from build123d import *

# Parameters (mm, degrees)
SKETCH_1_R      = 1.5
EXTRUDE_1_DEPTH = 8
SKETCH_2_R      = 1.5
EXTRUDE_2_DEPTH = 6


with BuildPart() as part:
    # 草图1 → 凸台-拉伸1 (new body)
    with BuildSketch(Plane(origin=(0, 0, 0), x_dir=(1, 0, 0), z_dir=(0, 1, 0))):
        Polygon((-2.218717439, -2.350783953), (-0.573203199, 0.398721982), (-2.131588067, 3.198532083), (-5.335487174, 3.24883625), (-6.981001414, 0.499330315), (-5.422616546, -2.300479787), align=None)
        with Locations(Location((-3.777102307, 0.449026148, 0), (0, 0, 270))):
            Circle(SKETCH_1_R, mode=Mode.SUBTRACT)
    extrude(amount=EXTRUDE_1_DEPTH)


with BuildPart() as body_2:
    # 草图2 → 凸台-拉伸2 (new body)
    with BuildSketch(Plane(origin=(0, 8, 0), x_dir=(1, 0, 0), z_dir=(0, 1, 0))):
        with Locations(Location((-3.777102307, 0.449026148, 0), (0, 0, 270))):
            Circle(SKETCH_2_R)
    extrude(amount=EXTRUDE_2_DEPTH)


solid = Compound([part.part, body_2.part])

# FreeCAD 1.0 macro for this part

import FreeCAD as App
import Part
import Sketcher
Q = App.Units.Quantity

doc = App.newDocument("Part")
body = doc.addObject("PartDesign::Body", "Body")

# Sketch on XZ plane
sketch1 = body.newObject("Sketcher::SketchObject", "Sketch")
sketch1.AttachmentSupport = (doc.getObject("XZ_Plane"), [""])
sketch1.MapMode = "FlatFace"
sketch1.addGeometry([
    Part.LineSegment(App.Vector(-2.2, 2.4, 0), App.Vector(-0.6, -0.4, 0)),  # 0
    Part.LineSegment(App.Vector(-0.6, -0.4, 0), App.Vector(-2.1, -3.2, 0)),  # 1
    Part.LineSegment(App.Vector(-2.1, -3.2, 0), App.Vector(-5.3, -3.2, 0)),  # 2
    Part.LineSegment(App.Vector(-5.3, -3.2, 0), App.Vector(-7, -0.5, 0)),  # 3
    Part.LineSegment(App.Vector(-7, -0.5, 0), App.Vector(-5.4, 2.3, 0)),  # 4
    Part.LineSegment(App.Vector(-5.4, 2.3, 0), App.Vector(-2.2, 2.4, 0)),  # 5
    Part.Circle(App.Vector(-3.8, -0.4, 0), App.Vector(0, 0, 1), 1.5),  # 6
], False)
sketch1.addConstraint([
    Sketcher.Constraint("Coincident", 0, 2, 1, 1),
    Sketcher.Constraint("Coincident", 1, 2, 2, 1),
    Sketcher.Constraint("Coincident", 2, 2, 3, 1),
    Sketcher.Constraint("Coincident", 3, 2, 4, 1),
    Sketcher.Constraint("Coincident", 4, 2, 5, 1),
    Sketcher.Constraint("Coincident", 5, 2, 0, 1),
    Sketcher.Constraint("Parallel", 0, 3),
    Sketcher.Constraint("Parallel", 1, 4),
    Sketcher.Constraint("Parallel", 2, 5),
    Sketcher.Constraint("Equal", 0, 1),
    Sketcher.Constraint("Equal", 1, 2),
    Sketcher.Constraint("Equal", 2, 3),
    Sketcher.Constraint("Diameter", 6, Q("3 mm")),
    Sketcher.Constraint("DistanceX", 3, 2, -1, 1, Q("6.981001 mm")),
    Sketcher.Constraint("DistanceX", 6, 3, 0, 2, Q("3.203899 mm")),
    Sketcher.Constraint("DistanceX", 2, 2, 1, 2, Q("3.203899 mm")),
    Sketcher.Constraint("DistanceX", 3, 2, 6, 3, Q("3.203899 mm")),
    Sketcher.Constraint("DistanceY", 1, 2, 3, 2, Q("2.699202 mm")),
    Sketcher.Constraint("DistanceY", 0, 2, -1, 1, Q("0.398722 mm")),
    Sketcher.Constraint("DistanceX", 1, 2, -1, 1, Q("2.131588 mm")),
    Sketcher.Constraint("DistanceY", 2, 2, 6, 3, Q("2.79981 mm")),
])
pad1 = body.newObject("PartDesign::Pad", "Pad")
pad1.Profile = sketch1
pad1.Length = 8
pad1.Reversed = True
body2 = doc.addObject("PartDesign::Body", "Body001")

# Sketch on XZ plane
sketch2 = body2.newObject("Sketcher::SketchObject", "Sketch001")
sketch2.AttachmentSupport = (doc.getObject("XZ_Plane001"), [""])
sketch2.MapMode = "FlatFace"
sketch2.AttachmentOffset = App.Placement(App.Vector(0, 0, -8), App.Rotation())
sketch2.addGeometry(Part.Circle(App.Vector(-3.8, -0.4, 0), App.Vector(0, 0, 1), 1.5), False)
sketch2.addConstraint([
    Sketcher.Constraint("Diameter", 0, Q("3 mm")),
    Sketcher.Constraint("DistanceX", 0, 3, -1, 1, Q("3.777102 mm")),
    Sketcher.Constraint("DistanceY", 0, 3, -1, 1, Q("0.449026 mm")),
])
pad2 = body2.newObject("PartDesign::Pad", "Pad001")
pad2.Profile = sketch2
pad2.Length = 6
pad2.Reversed = True

doc.recompute()
